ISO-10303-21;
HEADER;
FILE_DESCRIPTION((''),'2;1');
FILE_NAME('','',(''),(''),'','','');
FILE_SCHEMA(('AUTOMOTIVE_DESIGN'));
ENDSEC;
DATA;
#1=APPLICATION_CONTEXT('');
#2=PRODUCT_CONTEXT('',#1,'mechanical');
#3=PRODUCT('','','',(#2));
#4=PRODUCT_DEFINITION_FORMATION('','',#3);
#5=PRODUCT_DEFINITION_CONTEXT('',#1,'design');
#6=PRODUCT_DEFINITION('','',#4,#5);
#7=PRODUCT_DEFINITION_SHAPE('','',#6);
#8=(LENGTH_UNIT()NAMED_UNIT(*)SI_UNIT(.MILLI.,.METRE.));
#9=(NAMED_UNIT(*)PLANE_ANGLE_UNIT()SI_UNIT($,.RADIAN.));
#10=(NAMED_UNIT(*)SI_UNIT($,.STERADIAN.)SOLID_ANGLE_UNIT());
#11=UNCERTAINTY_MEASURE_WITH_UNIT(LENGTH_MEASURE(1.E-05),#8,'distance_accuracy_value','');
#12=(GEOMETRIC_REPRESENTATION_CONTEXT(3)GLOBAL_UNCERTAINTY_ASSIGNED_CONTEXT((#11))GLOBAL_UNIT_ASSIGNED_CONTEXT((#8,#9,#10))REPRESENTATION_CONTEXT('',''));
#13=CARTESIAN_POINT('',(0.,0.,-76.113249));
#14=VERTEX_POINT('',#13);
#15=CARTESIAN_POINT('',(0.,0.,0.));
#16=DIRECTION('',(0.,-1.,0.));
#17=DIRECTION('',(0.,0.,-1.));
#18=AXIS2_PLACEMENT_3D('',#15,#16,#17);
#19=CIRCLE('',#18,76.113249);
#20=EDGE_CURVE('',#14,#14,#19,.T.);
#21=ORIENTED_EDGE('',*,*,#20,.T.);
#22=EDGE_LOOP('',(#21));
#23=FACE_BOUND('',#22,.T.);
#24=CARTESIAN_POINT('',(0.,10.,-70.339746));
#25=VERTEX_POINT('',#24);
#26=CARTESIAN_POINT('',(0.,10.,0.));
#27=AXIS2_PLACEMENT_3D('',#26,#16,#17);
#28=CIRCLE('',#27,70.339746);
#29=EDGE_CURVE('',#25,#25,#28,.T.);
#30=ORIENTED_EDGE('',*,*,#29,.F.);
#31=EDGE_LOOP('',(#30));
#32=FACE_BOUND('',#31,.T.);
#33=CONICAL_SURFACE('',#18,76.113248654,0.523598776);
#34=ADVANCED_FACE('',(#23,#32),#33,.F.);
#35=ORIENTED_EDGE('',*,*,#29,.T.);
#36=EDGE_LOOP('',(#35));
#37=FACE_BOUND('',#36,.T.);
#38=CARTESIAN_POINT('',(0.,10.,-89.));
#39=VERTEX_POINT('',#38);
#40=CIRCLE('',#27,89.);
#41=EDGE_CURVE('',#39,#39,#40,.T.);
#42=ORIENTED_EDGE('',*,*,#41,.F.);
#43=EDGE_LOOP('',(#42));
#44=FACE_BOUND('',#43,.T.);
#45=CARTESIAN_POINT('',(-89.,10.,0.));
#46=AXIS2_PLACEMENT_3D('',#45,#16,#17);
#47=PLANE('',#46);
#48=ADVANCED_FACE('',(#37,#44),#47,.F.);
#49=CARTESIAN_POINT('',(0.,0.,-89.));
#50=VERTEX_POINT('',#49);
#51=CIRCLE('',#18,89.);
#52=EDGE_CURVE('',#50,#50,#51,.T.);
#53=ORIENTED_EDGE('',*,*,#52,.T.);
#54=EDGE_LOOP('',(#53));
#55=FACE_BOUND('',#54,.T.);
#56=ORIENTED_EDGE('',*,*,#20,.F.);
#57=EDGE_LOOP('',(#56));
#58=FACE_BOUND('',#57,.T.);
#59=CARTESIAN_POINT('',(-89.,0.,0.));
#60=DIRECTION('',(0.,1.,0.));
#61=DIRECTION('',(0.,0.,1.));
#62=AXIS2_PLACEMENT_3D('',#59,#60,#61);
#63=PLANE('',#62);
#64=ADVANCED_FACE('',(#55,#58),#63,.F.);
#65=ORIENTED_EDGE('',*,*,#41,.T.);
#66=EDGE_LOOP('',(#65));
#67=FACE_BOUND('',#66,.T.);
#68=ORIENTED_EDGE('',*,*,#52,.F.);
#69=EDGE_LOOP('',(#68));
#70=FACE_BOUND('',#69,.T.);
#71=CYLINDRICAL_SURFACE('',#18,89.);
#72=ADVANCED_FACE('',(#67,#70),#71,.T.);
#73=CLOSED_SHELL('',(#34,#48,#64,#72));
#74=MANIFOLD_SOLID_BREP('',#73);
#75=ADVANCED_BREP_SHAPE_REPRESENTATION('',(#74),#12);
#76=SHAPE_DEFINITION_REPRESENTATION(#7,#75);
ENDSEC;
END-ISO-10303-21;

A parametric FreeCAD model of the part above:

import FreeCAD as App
import Part
import Sketcher

V = App.Vector
Q = App.Units.Quantity


def add_polygon(sketch, points):
    """Adds a closed chain of lines whose ends are joined by coincident constraints."""
    first, n = sketch.GeometryCount, len(points)
    for a, b in zip(points, points[1:] + points[:1]):
        sketch.addGeometry(Part.LineSegment(App.Vector(*a, 0), App.Vector(*b, 0)), False)
    for i in range(n):
        sketch.addConstraint(Sketcher.Constraint("Coincident", first + i, 2, first + (i + 1) % n, 1))

doc = App.newDocument("Part")
body = doc.addObject("PartDesign::Body", "Body")

# Sketch on XY plane
sketch1 = doc.addObject("Sketcher::SketchObject", "Sketch")
body.addObject(sketch1)
sketch1.AttachmentSupport = (doc.XY_Plane, [""])
sketch1.MapMode = "FlatFace"
add_polygon(sketch1, [(-89, 10), (-89, 0), (-76.113249, 0), (-70.339746, 10)])  # lines 0-3
sketch1.addConstraint(Sketcher.Constraint("Vertical", 0))
sketch1.addConstraint(Sketcher.Constraint("Horizontal", 1))
sketch1.addConstraint(Sketcher.Constraint("Horizontal", 3))
sketch1.addConstraint(Sketcher.Constraint("PointOnObject", 0, 2, -1))
sketch1.addConstraint(Sketcher.Constraint("DistanceY", 0, 2, 0, 1, Q("10 mm")))
sketch1.addConstraint(Sketcher.Constraint("Angle", 2, Q("60 deg")))
sketch1.addConstraint(Sketcher.Constraint("DistanceX", 0, 2, -1, 1, Q("89 mm")))
sketch1.addConstraint(Sketcher.Constraint("DistanceX", 1, 1, 1, 2, Q("12.886751 mm")))
revolution = doc.addObject("PartDesign::Revolution", "Revolution")
body.addObject(revolution)
revolution.Profile = sketch1
revolution.ReferenceAxis = (sketch1, ["V_Axis"])
revolution.Angle = 360

doc.recompute()
